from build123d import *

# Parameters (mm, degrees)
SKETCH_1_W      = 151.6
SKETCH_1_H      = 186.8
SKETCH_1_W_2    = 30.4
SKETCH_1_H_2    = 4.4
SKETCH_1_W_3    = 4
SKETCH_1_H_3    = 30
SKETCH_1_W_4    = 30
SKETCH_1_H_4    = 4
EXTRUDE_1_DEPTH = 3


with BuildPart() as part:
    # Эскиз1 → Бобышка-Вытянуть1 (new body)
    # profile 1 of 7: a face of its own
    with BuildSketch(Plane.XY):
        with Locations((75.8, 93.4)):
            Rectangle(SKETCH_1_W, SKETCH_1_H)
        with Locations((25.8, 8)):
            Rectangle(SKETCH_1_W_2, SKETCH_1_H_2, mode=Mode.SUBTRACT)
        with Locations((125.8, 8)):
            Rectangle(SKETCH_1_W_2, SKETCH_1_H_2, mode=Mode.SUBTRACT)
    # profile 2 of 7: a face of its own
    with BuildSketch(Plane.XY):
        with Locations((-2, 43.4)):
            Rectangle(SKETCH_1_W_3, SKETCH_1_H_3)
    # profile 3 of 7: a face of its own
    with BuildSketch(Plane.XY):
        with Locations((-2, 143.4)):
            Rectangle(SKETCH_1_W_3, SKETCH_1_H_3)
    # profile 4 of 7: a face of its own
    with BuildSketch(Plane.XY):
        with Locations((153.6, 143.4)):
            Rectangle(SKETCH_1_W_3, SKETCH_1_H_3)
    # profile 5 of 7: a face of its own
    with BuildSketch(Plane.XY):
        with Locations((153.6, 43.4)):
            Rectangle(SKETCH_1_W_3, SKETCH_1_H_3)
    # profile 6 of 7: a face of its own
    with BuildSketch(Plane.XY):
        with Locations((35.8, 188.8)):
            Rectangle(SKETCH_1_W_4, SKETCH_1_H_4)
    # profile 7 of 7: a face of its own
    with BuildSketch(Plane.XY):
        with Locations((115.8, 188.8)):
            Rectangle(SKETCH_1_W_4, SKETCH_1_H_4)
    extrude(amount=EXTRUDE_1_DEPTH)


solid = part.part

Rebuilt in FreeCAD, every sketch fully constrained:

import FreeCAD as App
import Part
import Sketcher
from FreeCAD import Vector
Q = App.Units.Quantity


def add_polygon(sketch, points):
    """Adds a closed chain of lines whose ends are joined by coincident constraints."""
    first, n = sketch.GeometryCount, len(points)
    for a, b in zip(points, points[1:] + points[:1]):
        sketch.addGeometry(Part.LineSegment(App.Vector(*a, 0), App.Vector(*b, 0)), False)
    for i in range(n):
        sketch.addConstraint(Sketcher.Constraint("Coincident", first + i, 2, first + (i + 1) % n, 1))

doc = App.newDocument("Part")
params = doc.addObject("Spreadsheet::Sheet", "Params")
for row, (alias, value) in enumerate([
    ("sketch1_width", "4 mm"),
    ("sketch1_width2", "30 mm"),
    ("sketch1_width3", "50 mm"),
    ("sketch1_height", "70 mm"),
    ("sketch1_width4", "151.6 mm"),
    ("pad1_length", "3 mm"),
], start=1):
    params.set(f"A{row}", alias)
    params.set(f"B{row}", "=" + value)
    params.setAlias(f"B{row}", alias)

body = doc.addObject("PartDesign::Body", "Body")

sketch1 = body.newObject("Sketcher::SketchObject", "Sketch")
sketch1.AttachmentSupport = (doc.getObject("XY_Plane"), [""])
sketch1.MapMode = "FlatFace"
add_polygon(sketch1, [(0, 28.4), (0, 0), (151.6, 0), (151.6, 28.4), (155.6, 28.4), (155.6, 58.4), (151.6, 58.4), (151.6, 128.4), (155.6, 128.4), (155.6, 158.4), (151.6, 158.4), (151.6, 186.8), (130.8, 186.8), (130.8, 190.8), (100.8, 190.8), (100.8, 186.8), (50.8, 186.8), (50.8, 190.8), (20.8, 190.8), (20.8, 186.8), (0, 186.8), (0, 158.4), (-4, 158.4), (-4, 128.4), (0, 128.4), (0, 58.4), (-4, 58.4), (-4, 28.4)])
add_polygon(sketch1, [(41, 5.8), (10.6, 5.8), (10.6, 10.2), (41, 10.2)])
add_polygon(sketch1, [(141, 5.8), (110.6, 5.8), (110.6, 10.2), (141, 10.2)])
sketch1.addConstraint(Sketcher.Constraint("Vertical", 0))
sketch1.addConstraint(Sketcher.Constraint("Horizontal", 1))
sketch1.addConstraint(Sketcher.Constraint("Vertical", 2))
sketch1.addConstraint(Sketcher.Constraint("Horizontal", 3))
sketch1.addConstraint(Sketcher.Constraint("Vertical", 4))
sketch1.addConstraint(Sketcher.Constraint("Horizontal", 5))
sketch1.addConstraint(Sketcher.Constraint("Vertical", 6))
sketch1.addConstraint(Sketcher.Constraint("Horizontal", 7))
sketch1.addConstraint(Sketcher.Constraint("Vertical", 8))
sketch1.addConstraint(Sketcher.Constraint("Horizontal", 9))
sketch1.addConstraint(Sketcher.Constraint("Vertical", 10))
sketch1.addConstraint(Sketcher.Constraint("Horizontal", 11))
sketch1.addConstraint(Sketcher.Constraint("Vertical", 12))
sketch1.addConstraint(Sketcher.Constraint("Horizontal", 13))
sketch1.addConstraint(Sketcher.Constraint("Vertical", 14))
sketch1.addConstraint(Sketcher.Constraint("Horizontal", 15))
sketch1.addConstraint(Sketcher.Constraint("Vertical", 16))
sketch1.addConstraint(Sketcher.Constraint("Horizontal", 17))
sketch1.addConstraint(Sketcher.Constraint("Vertical", 18))
sketch1.addConstraint(Sketcher.Constraint("Horizontal", 19))
sketch1.addConstraint(Sketcher.Constraint("Vertical", 20))
sketch1.addConstraint(Sketcher.Constraint("Horizontal", 21))
sketch1.addConstraint(Sketcher.Constraint("Vertical", 22))
sketch1.addConstraint(Sketcher.Constraint("Horizontal", 23))
sketch1.addConstraint(Sketcher.Constraint("Vertical", 24))
sketch1.addConstraint(Sketcher.Constraint("Horizontal", 25))
sketch1.addConstraint(Sketcher.Constraint("Vertical", 26))
sketch1.addConstraint(Sketcher.Constraint("Horizontal", 27))
sketch1.addConstraint(Sketcher.Constraint("Horizontal", 28))
sketch1.addConstraint(Sketcher.Constraint("Vertical", 29))
sketch1.addConstraint(Sketcher.Constraint("Horizontal", 30))
sketch1.addConstraint(Sketcher.Constraint("Vertical", 31))
sketch1.addConstraint(Sketcher.Constraint("Horizontal", 32))
sketch1.addConstraint(Sketcher.Constraint("Vertical", 33))
sketch1.addConstraint(Sketcher.Constraint("Horizontal", 34))
sketch1.addConstraint(Sketcher.Constraint("Vertical", 35))
sketch1.addConstraint(Sketcher.Constraint("Coincident", 0, 2, -1, 1))
sketch1.addConstraint(Sketcher.Constraint("PointOnObject", 19, 2, -2))
sketch1.addConstraint(Sketcher.Constraint("PointOnObject", 23, 2, -2))
sketch1.addConstraint(Sketcher.Constraint("Horizontal", 11, 2, 14, 2))
sketch1.addConstraint(Sketcher.Constraint("Horizontal", 13, 2, 16, 2))
sketch1.addConstraint(Sketcher.Constraint("Horizontal", 15, 2, 18, 2))
sketch1.addConstraint(Sketcher.Constraint("Horizontal", 9, 2, 20, 2))
sketch1.addConstraint(Sketcher.Constraint("Horizontal", 7, 2, 22, 2))
sketch1.addConstraint(Sketcher.Constraint("Horizontal", 5, 2, 24, 2))
sketch1.addConstraint(Sketcher.Constraint("Horizontal", 3, 2, 26, 2))
sketch1.addConstraint(Sketcher.Constraint("Horizontal", 31, 2, 32, 2))
sketch1.addConstraint(Sketcher.Constraint("Horizontal", 30, 2, 33, 2))
sketch1.addConstraint(Sketcher.Constraint("Vertical", 2, 2, 5, 2))
sketch1.addConstraint(Sketcher.Constraint("Vertical", 4, 2, 7, 2))
sketch1.addConstraint(Sketcher.Constraint("Vertical", 6, 2, 9, 2))
sketch1.addConstraint(Sketcher.Constraint("Vertical", 22, 2, 25, 2))
sketch1.addConstraint(Sketcher.Constraint("Equal", 13, 17))
sketch1.addConstraint(Sketcher.Constraint("Equal", 11, 19))
sketch1.addConstraint(Sketcher.Constraint("Equal", 9, 21))
sketch1.addConstraint(Sketcher.Constraint("Equal", 30, 32))
sketch1.addConstraint(Sketcher.Constraint("Equal", 17, 4))
sketch1.addConstraint(Sketcher.Constraint("Equal", 4, 8))
sketch1.addConstraint(Sketcher.Constraint("Equal", 2, 10))
sketch1.addConstraint(Sketcher.Constraint("Equal", 27, 12))
sketch1.addConstraint(Sketcher.Constraint("DistanceX", 3, 1, 3, 2, Q("4 mm")))
sketch1.addConstraint(Sketcher.Constraint("DistanceX", 13, 2, 13, 1, Q("30 mm")))
sketch1.addConstraint(Sketcher.Constraint("DistanceX", 15, 2, 15, 1, Q("50 mm")))
sketch1.addConstraint(Sketcher.Constraint("DistanceY", 6, 1, 6, 2, Q("70 mm")))
sketch1.addConstraint(Sketcher.Constraint("DistanceX", 1, 1, 1, 2, Q("151.6 mm")))
sketch1.addConstraint(Sketcher.Constraint("DistanceX", 28, 2, 28, 1, Q("30.4 mm")))
sketch1.addConstraint(Sketcher.Constraint("DistanceY", 0, 2, 0, 1, Q("28.4 mm")))
sketch1.addConstraint(Sketcher.Constraint("DistanceY", 29, 1, 29, 2, Q("4.4 mm")))
sketch1.addConstraint(Sketcher.Constraint("DistanceX", -1, 1, 30, 2, Q("41 mm")))
sketch1.addConstraint(Sketcher.Constraint("DistanceX", -1, 1, 34, 2, Q("141 mm")))
sketch1.addConstraint(Sketcher.Constraint("DistanceY", -1, 1, 28, 2, Q("5.8 mm")))
sketch1.setExpression("Constraints[96]", "Params.sketch1_width")
sketch1.setExpression("Constraints[97]", "Params.sketch1_width2")
sketch1.setExpression("Constraints[98]", "Params.sketch1_width3")
sketch1.setExpression("Constraints[99]", "Params.sketch1_height")
sketch1.setExpression("Constraints[100]", "Params.sketch1_width4")
pad1 = body.newObject("PartDesign::Pad", "Pad")
pad1.Profile = sketch1
pad1.setExpression("Length", "Params.pad1_length")

doc.recompute()
